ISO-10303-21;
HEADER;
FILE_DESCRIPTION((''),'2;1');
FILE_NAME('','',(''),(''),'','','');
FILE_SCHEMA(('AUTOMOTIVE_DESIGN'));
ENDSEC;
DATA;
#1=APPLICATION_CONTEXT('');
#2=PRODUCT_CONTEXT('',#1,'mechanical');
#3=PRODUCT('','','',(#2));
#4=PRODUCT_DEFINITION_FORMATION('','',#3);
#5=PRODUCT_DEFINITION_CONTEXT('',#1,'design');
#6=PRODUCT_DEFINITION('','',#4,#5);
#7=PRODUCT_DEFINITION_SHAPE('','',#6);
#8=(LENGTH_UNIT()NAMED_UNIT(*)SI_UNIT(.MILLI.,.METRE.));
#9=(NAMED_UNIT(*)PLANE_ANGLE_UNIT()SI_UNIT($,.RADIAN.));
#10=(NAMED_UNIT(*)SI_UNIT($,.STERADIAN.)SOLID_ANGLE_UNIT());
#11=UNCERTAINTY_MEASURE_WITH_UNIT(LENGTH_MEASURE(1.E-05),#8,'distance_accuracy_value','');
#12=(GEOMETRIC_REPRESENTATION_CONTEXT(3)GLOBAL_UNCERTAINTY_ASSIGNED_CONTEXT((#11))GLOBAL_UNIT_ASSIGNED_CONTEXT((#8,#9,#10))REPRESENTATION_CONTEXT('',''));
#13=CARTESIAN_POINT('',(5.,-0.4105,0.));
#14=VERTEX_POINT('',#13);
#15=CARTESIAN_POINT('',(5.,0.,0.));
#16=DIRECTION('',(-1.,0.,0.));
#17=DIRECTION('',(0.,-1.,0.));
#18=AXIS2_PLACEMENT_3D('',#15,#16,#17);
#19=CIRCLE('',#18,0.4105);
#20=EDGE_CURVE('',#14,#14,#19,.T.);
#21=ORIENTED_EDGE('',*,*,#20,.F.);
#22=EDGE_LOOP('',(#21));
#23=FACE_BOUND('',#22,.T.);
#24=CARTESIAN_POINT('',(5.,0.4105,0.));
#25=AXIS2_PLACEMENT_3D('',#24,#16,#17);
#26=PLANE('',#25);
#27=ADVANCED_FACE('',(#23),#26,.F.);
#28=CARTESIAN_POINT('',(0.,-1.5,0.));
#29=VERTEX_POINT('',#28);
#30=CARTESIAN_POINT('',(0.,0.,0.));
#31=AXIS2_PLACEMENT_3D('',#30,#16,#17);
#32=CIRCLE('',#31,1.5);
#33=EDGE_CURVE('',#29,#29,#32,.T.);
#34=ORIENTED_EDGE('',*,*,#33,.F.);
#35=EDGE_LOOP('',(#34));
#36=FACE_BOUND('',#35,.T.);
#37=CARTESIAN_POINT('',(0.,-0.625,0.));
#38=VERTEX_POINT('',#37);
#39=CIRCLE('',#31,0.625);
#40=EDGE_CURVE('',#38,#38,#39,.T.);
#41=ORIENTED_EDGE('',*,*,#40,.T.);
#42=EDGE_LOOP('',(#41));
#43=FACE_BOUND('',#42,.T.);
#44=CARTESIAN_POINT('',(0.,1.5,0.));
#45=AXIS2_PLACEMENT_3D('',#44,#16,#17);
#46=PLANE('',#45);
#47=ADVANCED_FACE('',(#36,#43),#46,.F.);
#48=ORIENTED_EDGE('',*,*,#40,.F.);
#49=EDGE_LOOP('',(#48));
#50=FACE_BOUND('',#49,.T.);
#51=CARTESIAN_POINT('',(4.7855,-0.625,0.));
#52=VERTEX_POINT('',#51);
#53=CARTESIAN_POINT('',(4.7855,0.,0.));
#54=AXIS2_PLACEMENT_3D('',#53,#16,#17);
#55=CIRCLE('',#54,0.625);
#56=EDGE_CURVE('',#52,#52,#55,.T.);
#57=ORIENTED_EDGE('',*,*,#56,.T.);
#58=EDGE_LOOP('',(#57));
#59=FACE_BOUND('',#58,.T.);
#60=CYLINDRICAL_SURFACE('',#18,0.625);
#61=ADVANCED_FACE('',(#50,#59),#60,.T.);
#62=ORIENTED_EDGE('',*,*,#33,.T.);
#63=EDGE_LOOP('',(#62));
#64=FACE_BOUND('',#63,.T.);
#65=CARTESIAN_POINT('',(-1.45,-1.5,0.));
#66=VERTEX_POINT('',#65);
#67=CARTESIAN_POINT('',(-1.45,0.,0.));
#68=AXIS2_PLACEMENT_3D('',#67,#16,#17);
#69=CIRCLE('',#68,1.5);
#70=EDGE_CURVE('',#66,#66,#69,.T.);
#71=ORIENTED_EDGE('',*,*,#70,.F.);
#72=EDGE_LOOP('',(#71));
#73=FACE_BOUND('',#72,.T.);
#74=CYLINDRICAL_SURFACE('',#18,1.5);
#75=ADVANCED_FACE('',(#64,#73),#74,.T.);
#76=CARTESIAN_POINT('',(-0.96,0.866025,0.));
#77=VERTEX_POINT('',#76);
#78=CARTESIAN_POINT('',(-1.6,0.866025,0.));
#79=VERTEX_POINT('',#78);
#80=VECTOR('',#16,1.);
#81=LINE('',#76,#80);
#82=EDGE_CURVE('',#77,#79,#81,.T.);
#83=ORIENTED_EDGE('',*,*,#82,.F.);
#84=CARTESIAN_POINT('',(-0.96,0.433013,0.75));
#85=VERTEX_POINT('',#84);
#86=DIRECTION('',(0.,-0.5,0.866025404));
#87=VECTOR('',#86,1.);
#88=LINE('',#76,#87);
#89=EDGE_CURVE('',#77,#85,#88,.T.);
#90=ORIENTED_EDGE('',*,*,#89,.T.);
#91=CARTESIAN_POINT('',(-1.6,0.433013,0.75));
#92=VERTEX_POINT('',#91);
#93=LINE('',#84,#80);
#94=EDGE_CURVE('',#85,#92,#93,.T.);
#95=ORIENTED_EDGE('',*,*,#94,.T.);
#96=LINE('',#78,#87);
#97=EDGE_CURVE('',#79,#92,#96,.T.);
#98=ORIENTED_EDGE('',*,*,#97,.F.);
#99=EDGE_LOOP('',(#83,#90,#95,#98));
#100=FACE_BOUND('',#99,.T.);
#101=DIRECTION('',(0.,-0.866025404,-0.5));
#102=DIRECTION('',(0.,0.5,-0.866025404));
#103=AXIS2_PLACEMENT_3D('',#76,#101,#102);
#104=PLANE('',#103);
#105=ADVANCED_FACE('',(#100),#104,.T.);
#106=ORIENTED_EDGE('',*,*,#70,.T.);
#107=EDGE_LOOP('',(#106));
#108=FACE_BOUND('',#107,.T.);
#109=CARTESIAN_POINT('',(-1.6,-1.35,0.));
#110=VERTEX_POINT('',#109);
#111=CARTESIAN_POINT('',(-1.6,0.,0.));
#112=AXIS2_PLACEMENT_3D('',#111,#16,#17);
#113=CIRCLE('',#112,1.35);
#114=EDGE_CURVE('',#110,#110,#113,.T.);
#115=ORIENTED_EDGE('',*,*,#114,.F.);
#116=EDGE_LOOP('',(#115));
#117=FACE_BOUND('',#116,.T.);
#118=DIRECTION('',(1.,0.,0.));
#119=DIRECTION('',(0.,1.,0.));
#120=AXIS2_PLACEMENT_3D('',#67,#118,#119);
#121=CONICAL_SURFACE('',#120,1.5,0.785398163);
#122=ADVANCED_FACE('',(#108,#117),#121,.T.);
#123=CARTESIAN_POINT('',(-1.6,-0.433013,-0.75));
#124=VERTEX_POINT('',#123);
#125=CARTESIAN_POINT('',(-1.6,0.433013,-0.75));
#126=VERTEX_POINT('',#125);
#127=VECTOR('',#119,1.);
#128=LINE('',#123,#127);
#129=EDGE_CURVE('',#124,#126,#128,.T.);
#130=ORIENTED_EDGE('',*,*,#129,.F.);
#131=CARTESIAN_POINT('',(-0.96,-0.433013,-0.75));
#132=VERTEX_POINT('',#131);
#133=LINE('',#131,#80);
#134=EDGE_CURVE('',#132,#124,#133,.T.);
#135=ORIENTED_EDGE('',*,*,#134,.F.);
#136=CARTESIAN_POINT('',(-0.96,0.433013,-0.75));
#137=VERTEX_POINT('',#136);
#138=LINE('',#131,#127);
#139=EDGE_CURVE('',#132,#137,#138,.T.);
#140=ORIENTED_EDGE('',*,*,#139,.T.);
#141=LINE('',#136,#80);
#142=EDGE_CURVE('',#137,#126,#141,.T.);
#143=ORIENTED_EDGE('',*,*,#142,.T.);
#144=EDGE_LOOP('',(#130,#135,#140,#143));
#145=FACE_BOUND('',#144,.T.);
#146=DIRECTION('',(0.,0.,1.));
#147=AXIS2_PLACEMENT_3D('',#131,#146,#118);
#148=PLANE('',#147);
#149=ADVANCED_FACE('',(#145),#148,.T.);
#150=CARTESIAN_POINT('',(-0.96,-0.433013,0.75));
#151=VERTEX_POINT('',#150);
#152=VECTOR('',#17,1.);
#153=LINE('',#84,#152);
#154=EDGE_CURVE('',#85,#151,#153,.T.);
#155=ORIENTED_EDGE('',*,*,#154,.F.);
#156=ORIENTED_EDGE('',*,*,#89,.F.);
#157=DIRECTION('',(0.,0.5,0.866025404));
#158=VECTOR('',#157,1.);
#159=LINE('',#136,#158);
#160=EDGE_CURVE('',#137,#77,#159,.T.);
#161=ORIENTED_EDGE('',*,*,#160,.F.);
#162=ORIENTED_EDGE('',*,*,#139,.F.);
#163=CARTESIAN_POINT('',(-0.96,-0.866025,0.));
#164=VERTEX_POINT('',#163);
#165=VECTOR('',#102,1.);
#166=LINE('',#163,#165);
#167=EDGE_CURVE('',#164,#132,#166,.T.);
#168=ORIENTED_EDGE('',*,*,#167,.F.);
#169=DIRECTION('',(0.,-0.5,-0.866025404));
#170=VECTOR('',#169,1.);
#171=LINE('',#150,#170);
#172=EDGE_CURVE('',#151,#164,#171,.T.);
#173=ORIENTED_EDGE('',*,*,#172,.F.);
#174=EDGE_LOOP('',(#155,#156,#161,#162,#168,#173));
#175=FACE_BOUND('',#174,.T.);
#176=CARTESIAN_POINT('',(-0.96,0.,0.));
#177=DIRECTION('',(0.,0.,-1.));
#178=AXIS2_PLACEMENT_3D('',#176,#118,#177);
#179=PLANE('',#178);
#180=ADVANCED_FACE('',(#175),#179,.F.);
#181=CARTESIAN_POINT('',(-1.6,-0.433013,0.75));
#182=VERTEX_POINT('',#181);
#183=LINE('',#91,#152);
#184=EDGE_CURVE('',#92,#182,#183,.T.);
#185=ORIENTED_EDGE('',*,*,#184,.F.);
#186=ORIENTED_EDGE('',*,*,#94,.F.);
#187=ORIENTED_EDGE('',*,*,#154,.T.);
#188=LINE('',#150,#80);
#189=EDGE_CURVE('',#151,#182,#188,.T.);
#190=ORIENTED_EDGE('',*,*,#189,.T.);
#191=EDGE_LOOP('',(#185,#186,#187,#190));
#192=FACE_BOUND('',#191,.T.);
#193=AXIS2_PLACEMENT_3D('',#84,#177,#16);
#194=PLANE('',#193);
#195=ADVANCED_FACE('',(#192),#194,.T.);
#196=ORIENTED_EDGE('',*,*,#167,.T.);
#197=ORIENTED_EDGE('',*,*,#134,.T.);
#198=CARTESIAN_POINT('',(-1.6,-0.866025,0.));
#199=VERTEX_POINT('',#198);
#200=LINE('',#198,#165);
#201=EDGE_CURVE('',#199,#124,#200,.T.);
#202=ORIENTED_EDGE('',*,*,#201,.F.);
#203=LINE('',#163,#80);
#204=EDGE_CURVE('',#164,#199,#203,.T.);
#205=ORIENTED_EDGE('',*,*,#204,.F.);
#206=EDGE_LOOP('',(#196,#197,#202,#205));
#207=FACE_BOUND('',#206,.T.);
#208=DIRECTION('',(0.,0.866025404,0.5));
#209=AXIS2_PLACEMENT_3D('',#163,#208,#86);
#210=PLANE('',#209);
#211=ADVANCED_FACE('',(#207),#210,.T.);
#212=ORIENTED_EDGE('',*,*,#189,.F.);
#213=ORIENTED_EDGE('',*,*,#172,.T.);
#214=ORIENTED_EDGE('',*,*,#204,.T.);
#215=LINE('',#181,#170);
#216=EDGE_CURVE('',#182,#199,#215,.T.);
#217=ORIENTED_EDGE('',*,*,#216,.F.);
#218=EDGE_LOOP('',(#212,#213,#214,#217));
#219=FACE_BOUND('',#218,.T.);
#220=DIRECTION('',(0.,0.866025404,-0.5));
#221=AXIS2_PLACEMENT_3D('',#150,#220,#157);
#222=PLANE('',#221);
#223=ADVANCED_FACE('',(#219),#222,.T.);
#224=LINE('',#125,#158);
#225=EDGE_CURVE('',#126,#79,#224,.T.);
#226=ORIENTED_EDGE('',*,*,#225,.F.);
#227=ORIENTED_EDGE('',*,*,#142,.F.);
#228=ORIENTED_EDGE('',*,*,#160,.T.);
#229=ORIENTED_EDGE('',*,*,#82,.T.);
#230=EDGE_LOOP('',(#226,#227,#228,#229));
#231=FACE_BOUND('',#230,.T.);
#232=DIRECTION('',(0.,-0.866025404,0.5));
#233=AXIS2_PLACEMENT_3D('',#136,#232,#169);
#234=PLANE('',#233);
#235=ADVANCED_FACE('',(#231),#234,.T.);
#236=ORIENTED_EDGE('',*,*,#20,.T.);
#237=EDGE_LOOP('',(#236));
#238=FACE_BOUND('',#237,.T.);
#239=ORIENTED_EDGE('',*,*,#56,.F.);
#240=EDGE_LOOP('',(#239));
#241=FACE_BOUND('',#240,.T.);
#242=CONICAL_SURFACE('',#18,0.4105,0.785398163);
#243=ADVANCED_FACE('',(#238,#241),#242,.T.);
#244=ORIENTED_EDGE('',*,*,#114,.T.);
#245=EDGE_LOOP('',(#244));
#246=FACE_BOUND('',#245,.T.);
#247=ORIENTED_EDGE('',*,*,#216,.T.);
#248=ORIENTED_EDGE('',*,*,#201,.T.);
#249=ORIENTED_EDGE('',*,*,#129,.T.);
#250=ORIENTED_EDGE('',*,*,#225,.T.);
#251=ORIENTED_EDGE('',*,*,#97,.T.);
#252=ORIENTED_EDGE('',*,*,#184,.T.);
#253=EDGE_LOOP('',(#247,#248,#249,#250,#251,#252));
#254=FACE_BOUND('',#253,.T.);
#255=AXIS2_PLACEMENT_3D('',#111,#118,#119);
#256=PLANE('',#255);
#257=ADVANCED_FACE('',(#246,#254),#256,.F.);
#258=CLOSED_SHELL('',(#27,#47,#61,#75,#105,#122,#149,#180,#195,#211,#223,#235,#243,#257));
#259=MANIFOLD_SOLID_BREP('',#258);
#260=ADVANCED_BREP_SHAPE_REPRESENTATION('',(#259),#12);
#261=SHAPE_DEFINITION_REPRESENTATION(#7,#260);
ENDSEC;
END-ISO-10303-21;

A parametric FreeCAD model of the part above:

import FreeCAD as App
import Part
import Sketcher
from FreeCAD import Vector
Q = App.Units.Quantity


def add_polygon(sketch, points):
    """Adds a closed chain of lines whose ends are joined by coincident constraints."""
    first, n = sketch.GeometryCount, len(points)
    for a, b in zip(points, points[1:] + points[:1]):
        sketch.addGeometry(Part.LineSegment(App.Vector(*a, 0), App.Vector(*b, 0)), False)
    for i in range(n):
        sketch.addConstraint(Sketcher.Constraint("Coincident", first + i, 2, first + (i + 1) % n, 1))

doc = App.newDocument("Part")
body = doc.addObject("PartDesign::Body", "Body")

# Sketch on XY plane
sketch1 = body.newObject("Sketcher::SketchObject", "Sketch")
sketch1.AttachmentSupport = (doc.getObject("XY_Plane"), [""])
sketch1.MapMode = "FlatFace"
add_polygon(sketch1, [(-1.6, 1.35), (-1.6, 0), (5, 0), (5, 0.41), (4.79, 0.62), (0, 0.62), (0, 1.5), (-1.45, 1.5)])  # lines 0-7
sketch1.addConstraint([
    Sketcher.Constraint("Vertical", 0),
    Sketcher.Constraint("Horizontal", 1),
    Sketcher.Constraint("Vertical", 2),
    Sketcher.Constraint("Horizontal", 4),
    Sketcher.Constraint("Vertical", 5),
    Sketcher.Constraint("Horizontal", 6),
    Sketcher.Constraint("PointOnObject", 0, 2, -1),
    Sketcher.Constraint("PointOnObject", 4, 2, -2),
    Sketcher.Constraint("Perpendicular", 3, 7),
    Sketcher.Constraint("Angle", 3, Q("135 deg")),
    Sketcher.Constraint("DistanceX", 1, 1, 1, 2, Q("6.6 mm")),
    Sketcher.Constraint("DistanceX", -1, 1, 1, 2, Q("5 mm")),
    Sketcher.Constraint("DistanceX", 6, 2, 6, 1, Q("1.45 mm")),
    Sketcher.Constraint("DistanceY", 0, 2, 0, 1, Q("1.35 mm")),
    Sketcher.Constraint("DistanceY", 5, 1, 5, 2, Q("0.875 mm")),
    Sketcher.Constraint("DistanceX", 4, 2, 4, 1, Q("4.7855 mm")),
])
revolution = body.newObject("PartDesign::Revolution", "Revolution")
revolution.Profile = sketch1
revolution.ReferenceAxis = (sketch1, ["H_Axis"])
revolution.Angle = 360

# Sketch on YZ plane
sketch2 = body.newObject("Sketcher::SketchObject", "Sketch001")
sketch2.AttachmentSupport = (doc.getObject("YZ_Plane"), [""])
sketch2.MapMode = "FlatFace"
sketch2.AttachmentOffset = App.Placement(Vector(0, 0, -1.6), App.Rotation())
add_polygon(sketch2, [(-0.4, 0.8), (-0.9, 0), (-0.4, -0.8), (0.4, -0.8), (0.9, 0), (0.4, 0.8)])  # lines 0-5
sketch2.addConstraint([
    Sketcher.Constraint("Horizontal", 2),
    Sketcher.Constraint("Horizontal", 5),
    Sketcher.Constraint("Symmetric", 0, 2, 3, 2, -1, 1),
    Sketcher.Constraint("Symmetric", 1, 2, 4, 2, -1, 1),
    Sketcher.Constraint("PointOnObject", 0, 2, -1),
    Sketcher.Constraint("Parallel", 0, 3),
    Sketcher.Constraint("Vertical", 2, 2, 4, 2),
    Sketcher.Constraint("Angle", 0, Q("-120 deg")),
    Sketcher.Constraint("DistanceY", 2, 2, 4, 2, Q("1.5 mm")),
    Sketcher.Constraint("DistanceX", 2, 1, 2, 2, Q("0.866025 mm")),
])
pocket1 = body.newObject("PartDesign::Pocket", "Pocket")
pocket1.Profile = sketch2
pocket1.Length = 0.64
pocket1.Reversed = True

doc.recompute()
